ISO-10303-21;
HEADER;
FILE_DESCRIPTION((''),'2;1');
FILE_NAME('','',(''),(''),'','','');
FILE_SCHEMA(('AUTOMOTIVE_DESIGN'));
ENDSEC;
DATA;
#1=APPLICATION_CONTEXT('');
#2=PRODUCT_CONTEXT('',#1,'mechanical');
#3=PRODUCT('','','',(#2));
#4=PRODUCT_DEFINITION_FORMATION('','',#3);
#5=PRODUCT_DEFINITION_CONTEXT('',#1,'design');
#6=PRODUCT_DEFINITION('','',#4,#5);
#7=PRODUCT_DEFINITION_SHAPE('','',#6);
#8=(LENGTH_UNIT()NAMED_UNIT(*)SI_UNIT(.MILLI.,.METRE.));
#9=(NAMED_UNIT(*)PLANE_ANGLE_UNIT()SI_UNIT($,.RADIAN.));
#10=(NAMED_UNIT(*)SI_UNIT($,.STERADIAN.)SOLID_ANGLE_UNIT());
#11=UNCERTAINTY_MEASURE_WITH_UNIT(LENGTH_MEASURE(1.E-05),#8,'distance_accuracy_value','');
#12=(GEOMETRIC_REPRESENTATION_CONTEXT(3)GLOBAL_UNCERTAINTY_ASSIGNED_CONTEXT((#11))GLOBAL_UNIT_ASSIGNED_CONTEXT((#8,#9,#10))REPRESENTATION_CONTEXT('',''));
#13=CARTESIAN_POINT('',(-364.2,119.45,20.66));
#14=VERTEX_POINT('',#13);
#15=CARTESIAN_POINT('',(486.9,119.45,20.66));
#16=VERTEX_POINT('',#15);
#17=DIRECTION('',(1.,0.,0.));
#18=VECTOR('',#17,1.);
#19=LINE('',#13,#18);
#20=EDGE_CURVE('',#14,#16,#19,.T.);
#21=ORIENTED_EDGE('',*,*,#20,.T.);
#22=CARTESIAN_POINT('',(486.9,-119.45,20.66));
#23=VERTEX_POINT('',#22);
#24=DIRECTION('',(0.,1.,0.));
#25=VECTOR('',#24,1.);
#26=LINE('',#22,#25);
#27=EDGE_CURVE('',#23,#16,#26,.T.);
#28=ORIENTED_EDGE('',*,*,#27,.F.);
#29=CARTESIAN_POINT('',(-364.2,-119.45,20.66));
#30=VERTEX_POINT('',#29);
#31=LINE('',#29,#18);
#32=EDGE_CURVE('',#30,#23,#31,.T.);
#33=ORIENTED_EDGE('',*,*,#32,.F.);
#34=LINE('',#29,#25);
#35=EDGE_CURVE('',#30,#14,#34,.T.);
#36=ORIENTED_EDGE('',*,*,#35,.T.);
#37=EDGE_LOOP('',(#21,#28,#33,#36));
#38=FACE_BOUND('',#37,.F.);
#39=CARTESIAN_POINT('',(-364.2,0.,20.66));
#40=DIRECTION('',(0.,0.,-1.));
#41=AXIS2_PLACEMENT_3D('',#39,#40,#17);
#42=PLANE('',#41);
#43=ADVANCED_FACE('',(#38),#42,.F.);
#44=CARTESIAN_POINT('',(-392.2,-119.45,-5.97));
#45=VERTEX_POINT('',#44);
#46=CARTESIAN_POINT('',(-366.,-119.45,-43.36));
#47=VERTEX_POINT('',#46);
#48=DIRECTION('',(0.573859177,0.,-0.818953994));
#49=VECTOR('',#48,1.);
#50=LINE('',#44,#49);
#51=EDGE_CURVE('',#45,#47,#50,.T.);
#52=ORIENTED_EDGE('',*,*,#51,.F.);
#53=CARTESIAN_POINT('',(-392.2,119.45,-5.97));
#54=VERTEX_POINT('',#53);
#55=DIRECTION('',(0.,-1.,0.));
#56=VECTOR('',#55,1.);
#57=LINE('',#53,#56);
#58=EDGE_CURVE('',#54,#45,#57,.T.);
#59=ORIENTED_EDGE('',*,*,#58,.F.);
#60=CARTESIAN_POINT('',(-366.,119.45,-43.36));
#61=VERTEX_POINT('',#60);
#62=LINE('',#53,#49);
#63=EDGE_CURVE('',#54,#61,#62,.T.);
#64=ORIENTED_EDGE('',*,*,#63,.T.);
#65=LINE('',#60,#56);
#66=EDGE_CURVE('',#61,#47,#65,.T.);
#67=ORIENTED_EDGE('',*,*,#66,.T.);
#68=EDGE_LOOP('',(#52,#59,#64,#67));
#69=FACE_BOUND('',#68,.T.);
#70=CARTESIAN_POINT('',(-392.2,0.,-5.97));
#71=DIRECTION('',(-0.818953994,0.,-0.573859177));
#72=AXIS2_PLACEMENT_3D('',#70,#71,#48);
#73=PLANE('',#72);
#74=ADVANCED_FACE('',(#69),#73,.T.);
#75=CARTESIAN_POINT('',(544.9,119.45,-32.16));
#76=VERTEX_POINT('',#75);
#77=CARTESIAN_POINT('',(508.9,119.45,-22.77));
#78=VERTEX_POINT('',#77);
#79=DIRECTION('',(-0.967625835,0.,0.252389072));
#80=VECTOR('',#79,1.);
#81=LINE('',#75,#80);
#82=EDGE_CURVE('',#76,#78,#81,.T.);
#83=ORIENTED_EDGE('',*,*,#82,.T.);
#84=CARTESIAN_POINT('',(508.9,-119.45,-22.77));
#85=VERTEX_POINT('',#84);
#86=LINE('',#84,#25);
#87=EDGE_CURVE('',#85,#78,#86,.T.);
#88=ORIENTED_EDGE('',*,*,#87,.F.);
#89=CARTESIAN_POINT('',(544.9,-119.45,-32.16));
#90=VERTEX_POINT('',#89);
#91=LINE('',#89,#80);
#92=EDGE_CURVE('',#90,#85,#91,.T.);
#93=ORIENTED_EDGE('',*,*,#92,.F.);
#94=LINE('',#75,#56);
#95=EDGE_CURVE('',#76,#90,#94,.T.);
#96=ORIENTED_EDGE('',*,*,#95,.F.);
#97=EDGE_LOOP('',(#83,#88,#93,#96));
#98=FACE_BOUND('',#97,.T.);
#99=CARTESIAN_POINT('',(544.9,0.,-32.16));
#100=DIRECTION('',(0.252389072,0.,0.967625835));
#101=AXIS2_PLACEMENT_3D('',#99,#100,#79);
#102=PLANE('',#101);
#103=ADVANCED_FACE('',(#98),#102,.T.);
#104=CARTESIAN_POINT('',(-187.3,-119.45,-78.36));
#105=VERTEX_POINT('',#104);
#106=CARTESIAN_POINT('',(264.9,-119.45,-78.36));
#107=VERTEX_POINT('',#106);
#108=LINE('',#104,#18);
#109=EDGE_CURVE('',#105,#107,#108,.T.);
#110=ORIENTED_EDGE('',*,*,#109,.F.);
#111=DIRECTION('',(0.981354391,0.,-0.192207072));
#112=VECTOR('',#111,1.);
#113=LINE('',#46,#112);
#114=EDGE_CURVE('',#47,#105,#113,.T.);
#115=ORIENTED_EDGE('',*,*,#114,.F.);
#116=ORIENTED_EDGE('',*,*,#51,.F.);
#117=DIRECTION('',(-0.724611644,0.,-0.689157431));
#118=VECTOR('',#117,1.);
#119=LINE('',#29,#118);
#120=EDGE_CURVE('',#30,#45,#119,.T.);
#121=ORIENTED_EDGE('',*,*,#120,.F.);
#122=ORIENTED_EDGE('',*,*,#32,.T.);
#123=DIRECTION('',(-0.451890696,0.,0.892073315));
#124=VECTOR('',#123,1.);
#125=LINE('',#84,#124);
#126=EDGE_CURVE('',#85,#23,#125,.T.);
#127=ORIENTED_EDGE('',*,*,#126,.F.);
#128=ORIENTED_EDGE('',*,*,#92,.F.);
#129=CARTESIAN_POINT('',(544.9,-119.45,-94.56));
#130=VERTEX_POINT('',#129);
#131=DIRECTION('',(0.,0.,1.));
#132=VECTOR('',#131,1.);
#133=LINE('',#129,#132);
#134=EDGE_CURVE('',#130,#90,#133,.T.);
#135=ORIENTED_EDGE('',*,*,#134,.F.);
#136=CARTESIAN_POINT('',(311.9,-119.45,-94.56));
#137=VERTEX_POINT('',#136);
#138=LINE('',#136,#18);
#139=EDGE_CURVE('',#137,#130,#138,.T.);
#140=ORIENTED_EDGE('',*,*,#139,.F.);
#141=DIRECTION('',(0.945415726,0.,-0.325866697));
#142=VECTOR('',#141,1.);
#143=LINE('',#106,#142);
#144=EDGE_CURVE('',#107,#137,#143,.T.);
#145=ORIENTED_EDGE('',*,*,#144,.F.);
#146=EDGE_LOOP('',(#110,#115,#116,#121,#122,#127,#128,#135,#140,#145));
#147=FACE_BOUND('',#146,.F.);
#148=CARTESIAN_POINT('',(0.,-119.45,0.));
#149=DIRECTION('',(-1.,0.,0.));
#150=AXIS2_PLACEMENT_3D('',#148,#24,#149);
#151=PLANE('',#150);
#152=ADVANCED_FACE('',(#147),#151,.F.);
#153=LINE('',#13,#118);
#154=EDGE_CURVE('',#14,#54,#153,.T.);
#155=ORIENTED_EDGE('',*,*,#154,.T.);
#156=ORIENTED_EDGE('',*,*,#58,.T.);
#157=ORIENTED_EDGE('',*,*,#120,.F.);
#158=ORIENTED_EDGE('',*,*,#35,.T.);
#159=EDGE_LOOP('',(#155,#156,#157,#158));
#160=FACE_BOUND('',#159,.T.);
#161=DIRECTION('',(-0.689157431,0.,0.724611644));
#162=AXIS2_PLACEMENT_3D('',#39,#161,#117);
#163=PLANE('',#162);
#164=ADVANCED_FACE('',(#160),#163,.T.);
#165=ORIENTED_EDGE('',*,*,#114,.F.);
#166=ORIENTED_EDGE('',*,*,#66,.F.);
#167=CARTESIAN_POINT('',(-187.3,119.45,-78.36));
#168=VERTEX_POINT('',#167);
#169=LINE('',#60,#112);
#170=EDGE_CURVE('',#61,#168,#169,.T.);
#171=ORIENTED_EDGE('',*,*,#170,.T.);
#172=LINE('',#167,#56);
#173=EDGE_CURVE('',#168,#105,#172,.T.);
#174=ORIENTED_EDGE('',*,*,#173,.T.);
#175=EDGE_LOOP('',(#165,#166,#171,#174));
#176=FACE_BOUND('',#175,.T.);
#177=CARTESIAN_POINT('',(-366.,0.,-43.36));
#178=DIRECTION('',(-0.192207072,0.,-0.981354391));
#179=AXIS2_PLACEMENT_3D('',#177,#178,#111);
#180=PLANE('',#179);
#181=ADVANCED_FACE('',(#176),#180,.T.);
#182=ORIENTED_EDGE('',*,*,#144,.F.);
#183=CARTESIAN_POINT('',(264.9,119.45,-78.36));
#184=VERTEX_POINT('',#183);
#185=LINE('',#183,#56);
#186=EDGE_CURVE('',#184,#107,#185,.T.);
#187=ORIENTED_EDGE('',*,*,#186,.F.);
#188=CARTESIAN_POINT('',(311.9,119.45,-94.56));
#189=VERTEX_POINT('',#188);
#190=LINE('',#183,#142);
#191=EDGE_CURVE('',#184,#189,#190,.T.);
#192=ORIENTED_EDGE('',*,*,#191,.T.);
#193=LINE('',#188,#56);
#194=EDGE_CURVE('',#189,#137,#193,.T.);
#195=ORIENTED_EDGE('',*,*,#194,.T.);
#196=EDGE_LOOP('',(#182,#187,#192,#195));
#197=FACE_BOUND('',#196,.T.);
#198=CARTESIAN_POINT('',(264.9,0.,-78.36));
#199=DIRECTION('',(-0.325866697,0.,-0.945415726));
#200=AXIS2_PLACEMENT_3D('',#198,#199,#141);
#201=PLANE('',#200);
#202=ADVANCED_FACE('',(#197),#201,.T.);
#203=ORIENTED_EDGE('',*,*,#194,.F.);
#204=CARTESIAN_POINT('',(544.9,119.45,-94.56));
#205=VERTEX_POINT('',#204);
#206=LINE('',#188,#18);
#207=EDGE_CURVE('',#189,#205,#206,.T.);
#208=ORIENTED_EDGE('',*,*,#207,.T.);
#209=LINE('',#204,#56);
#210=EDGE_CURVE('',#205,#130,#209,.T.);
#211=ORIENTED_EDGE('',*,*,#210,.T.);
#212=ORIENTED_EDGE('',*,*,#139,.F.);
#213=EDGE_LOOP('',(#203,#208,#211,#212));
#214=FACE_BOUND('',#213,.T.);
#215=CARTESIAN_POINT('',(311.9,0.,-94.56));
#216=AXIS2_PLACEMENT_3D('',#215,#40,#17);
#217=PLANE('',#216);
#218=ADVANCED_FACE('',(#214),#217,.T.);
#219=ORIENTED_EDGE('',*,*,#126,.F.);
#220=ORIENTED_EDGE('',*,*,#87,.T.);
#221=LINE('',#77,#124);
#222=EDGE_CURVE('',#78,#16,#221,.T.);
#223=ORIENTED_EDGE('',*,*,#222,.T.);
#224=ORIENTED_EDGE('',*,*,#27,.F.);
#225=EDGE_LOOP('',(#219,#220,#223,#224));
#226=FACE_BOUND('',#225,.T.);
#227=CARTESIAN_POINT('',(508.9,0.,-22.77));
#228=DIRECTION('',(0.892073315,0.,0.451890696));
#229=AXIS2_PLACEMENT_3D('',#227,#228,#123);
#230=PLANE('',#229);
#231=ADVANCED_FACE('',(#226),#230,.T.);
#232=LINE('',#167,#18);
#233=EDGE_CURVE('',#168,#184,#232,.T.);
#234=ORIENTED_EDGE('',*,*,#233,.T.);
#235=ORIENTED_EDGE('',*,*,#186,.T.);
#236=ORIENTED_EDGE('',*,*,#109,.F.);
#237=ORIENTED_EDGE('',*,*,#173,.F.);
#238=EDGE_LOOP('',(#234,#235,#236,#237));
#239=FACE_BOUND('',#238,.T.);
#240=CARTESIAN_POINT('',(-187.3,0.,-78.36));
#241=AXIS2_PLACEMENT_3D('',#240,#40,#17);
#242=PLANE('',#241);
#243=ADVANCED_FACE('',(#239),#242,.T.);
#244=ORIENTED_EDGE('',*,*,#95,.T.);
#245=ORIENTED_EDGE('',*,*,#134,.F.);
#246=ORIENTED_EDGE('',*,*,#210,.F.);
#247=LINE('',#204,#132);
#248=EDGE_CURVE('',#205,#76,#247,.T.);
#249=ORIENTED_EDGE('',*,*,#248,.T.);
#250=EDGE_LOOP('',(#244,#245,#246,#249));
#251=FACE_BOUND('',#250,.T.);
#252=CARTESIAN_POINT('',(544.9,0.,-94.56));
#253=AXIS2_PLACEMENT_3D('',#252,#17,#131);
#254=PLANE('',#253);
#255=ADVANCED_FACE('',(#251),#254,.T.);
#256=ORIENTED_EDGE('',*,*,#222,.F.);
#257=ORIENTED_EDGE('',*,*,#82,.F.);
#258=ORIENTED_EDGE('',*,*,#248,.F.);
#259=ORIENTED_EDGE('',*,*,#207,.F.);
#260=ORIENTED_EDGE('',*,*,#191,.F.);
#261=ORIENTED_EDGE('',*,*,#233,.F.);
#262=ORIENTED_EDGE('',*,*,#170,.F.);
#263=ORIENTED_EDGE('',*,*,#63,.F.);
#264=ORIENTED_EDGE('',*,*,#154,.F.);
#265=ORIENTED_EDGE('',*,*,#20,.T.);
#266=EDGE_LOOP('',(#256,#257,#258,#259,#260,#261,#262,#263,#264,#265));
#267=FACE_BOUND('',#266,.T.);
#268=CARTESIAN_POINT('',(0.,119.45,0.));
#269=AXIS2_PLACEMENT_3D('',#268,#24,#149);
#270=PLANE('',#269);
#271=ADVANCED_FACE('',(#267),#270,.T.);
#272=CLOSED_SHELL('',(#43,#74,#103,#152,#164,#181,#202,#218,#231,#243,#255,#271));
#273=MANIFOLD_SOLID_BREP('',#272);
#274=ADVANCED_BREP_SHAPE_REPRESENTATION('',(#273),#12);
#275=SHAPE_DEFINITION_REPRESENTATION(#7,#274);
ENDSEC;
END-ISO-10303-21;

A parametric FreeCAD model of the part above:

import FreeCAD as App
import Part
import Sketcher

V = App.Vector
Q = App.Units.Quantity


def add_polygon(sketch, points):
    """Adds a closed chain of lines whose ends are joined by coincident constraints."""
    first, n = sketch.GeometryCount, len(points)
    for a, b in zip(points, points[1:] + points[:1]):
        sketch.addGeometry(Part.LineSegment(App.Vector(*a, 0), App.Vector(*b, 0)), False)
    for i in range(n):
        sketch.addConstraint(Sketcher.Constraint("Coincident", first + i, 2, first + (i + 1) % n, 1))

doc = App.newDocument("Part")
params = doc.addObject("Spreadsheet::Sheet", "Params")
for row, (alias, value) in enumerate([
    ("pad1_length", "238.9 mm"),
], start=1):
    params.set(f"A{row}", alias)
    params.set(f"B{row}", "=" + value)
    params.setAlias(f"B{row}", alias)

body = doc.addObject("PartDesign::Body", "Body")

sketch1 = body.newObject("Sketcher::SketchObject", "Sketch")
sketch1.AttachmentSupport = (doc.getObject("XZ_Plane"), [""])
sketch1.MapMode = "FlatFace"
add_polygon(sketch1, [(-392.2, -5.97), (-364.2, 20.66), (486.9, 20.66), (508.9, -22.77), (544.9, -32.16), (544.9, -94.56), (311.9, -94.56), (264.9, -78.36), (-187.3, -78.36), (-366, -43.36)])
sketch1.addConstraint([
    Sketcher.Constraint("Horizontal", 1),
    Sketcher.Constraint("Vertical", 4),
    Sketcher.Constraint("Horizontal", 5),
    Sketcher.Constraint("Horizontal", 7),
    Sketcher.Constraint("DistanceX", 8, 2, -1, 1, Q("366 mm")),
    Sketcher.Constraint("DistanceX", 0, 2, -1, 1, Q("364.2 mm")),
    Sketcher.Constraint("DistanceX", -1, 1, 1, 2, Q("486.9 mm")),
    Sketcher.Constraint("DistanceX", -1, 1, 2, 2, Q("508.9 mm")),
    Sketcher.Constraint("DistanceX", -1, 1, 3, 2, Q("544.9 mm")),
    Sketcher.Constraint("DistanceX", -1, 1, 5, 2, Q("311.9 mm")),
    Sketcher.Constraint("DistanceX", -1, 1, 6, 2, Q("264.9 mm")),
    Sketcher.Constraint("DistanceX", 7, 2, -1, 1, Q("187.3 mm")),
    Sketcher.Constraint("DistanceX", 9, 2, -1, 1, Q("392.2 mm")),
    Sketcher.Constraint("DistanceY", -1, 1, 0, 2, Q("20.66 mm")),
    Sketcher.Constraint("DistanceY", 2, 2, -1, 1, Q("22.77 mm")),
    Sketcher.Constraint("DistanceY", 3, 2, -1, 1, Q("32.16 mm")),
    Sketcher.Constraint("DistanceY", 4, 2, -1, 1, Q("94.56 mm")),
    Sketcher.Constraint("DistanceY", 6, 2, -1, 1, Q("78.36 mm")),
    Sketcher.Constraint("DistanceY", 8, 2, -1, 1, Q("43.36 mm")),
    Sketcher.Constraint("DistanceY", 9, 2, -1, 1, Q("5.97 mm")),
])
pad1 = body.newObject("PartDesign::Pad", "Pad")
pad1.Profile = sketch1
pad1.setExpression("Length", "Params.pad1_length")
pad1.Midplane = True

doc.recompute()
